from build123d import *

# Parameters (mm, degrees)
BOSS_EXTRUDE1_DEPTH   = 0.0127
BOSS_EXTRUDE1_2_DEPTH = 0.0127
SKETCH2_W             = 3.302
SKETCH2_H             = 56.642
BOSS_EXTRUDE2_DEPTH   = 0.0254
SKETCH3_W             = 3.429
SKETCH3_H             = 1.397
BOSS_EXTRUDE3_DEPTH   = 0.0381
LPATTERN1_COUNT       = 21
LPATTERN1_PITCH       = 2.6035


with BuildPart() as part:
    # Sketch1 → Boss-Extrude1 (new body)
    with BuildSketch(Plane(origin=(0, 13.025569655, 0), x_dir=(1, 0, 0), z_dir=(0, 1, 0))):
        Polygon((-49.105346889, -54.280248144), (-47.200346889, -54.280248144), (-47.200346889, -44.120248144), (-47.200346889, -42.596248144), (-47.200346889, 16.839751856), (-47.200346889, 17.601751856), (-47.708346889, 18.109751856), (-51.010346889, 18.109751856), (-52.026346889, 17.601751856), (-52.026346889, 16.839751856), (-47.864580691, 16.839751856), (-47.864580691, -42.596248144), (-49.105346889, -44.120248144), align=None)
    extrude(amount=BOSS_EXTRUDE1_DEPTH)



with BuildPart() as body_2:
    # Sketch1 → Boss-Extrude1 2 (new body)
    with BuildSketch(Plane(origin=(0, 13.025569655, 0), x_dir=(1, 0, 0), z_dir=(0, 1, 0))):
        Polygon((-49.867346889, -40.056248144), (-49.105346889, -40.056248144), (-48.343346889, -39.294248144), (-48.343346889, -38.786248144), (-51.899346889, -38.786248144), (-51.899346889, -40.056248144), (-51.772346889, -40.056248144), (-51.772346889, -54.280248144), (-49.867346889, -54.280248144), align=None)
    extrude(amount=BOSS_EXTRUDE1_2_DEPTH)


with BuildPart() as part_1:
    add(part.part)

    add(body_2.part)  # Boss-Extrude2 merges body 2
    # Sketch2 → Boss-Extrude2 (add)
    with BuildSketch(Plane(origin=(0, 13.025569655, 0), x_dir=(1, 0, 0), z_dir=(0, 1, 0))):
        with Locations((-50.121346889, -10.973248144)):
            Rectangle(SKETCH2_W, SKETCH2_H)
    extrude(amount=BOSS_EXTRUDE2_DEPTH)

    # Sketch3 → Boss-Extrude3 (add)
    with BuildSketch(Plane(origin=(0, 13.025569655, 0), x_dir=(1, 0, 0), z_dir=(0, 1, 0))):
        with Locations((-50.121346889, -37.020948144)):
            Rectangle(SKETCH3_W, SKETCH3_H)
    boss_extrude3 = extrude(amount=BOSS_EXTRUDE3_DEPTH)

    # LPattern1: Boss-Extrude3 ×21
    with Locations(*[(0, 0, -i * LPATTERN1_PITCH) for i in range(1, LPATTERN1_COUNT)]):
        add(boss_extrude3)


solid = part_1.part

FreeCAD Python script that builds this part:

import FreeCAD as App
import Part
import Sketcher

V = App.Vector
Q = App.Units.Quantity

doc = App.newDocument("Part")
params = doc.addObject("Spreadsheet::Sheet", "Params")
for row, (alias, value) in enumerate([
    ("sketch1_height", "0.4 in"),
    ("sketch1_width", "0.13 in"),
    ("sketch1_height2", "2.83 in"),
    ("sketch1_height3", "0.03 in"),
    ("sketch1_height4", "2.34 in"),
    ("pad1_length", "0.0005 in"),
    ("sketch2_width", "0.03 in"),
    ("sketch2_width2", "0.14 in"),
    ("sketch2_height", "0.02 in"),
    ("sketch2_height2", "0.05 in"),
    ("sketch2_height3", "0.56 in"),
    ("pad2_length", "0.0005 in"),
    ("sketch3_width", "0.13 in"),
    ("sketch3_height", "2.23 in"),
    ("pad3_length", "0.001 in"),
    ("sketch4_width", "0.135 in"),
    ("sketch4_height", "0.055 in"),
    ("pad4_length", "0.0015 in"),
    ("linearpattern_pitch", "0.1025 in"),
], start=1):
    params.set(f"A{row}", alias)
    params.set(f"B{row}", "=" + value)
    params.setAlias(f"B{row}", alias)

body = doc.addObject("PartDesign::Body", "Body")

# Sketch on XZ plane
sketch1 = body.newObject("Sketcher::SketchObject", "Sketch")
sketch1.AttachmentSupport = (doc.getObject("XZ_Plane"), [""])
sketch1.MapMode = "FlatFace"
sketch1.AttachmentOffset = App.Placement(V(0, 0, -13.02557), App.Rotation())
sketch1.addGeometry([
    Part.LineSegment(V(-49.105347, 54.280248, 0), V(-47.200347, 54.280248, 0)),  # 0
    Part.LineSegment(V(-47.200347, 54.280248, 0), V(-47.200347, -17.601752, 0)),  # 1
    Part.LineSegment(V(-47.200347, -17.601752, 0), V(-47.708347, -18.109752, 0)),  # 2
    Part.LineSegment(V(-47.708347, -18.109752, 0), V(-51.010347, -18.109752, 0)),  # 3
    Part.LineSegment(V(-51.010347, -18.109752, 0), V(-52.026347, -17.601752, 0)),  # 4
    Part.LineSegment(V(-52.026347, -17.601752, 0), V(-52.026347, -16.839752, 0)),  # 5
    Part.LineSegment(V(-52.026347, -16.839752, 0), V(-47.864581, -16.839752, 0)),  # 6
    Part.LineSegment(V(-47.864581, -16.839752, 0), V(-47.864581, 42.596248, 0)),  # 7
    Part.LineSegment(V(-47.864581, 42.596248, 0), V(-49.105347, 44.120248, 0)),  # 8
    Part.LineSegment(V(-49.105347, 44.120248, 0), V(-49.105347, 54.280248, 0)),  # 9
], False)
sketch1.addConstraint([
    Sketcher.Constraint("Coincident", 0, 2, 1, 1),
    Sketcher.Constraint("Coincident", 1, 2, 2, 1),
    Sketcher.Constraint("Coincident", 2, 2, 3, 1),
    Sketcher.Constraint("Coincident", 3, 2, 4, 1),
    Sketcher.Constraint("Coincident", 4, 2, 5, 1),
    Sketcher.Constraint("Coincident", 5, 2, 6, 1),
    Sketcher.Constraint("Coincident", 6, 2, 7, 1),
    Sketcher.Constraint("Coincident", 7, 2, 8, 1),
    Sketcher.Constraint("Coincident", 8, 2, 9, 1),
    Sketcher.Constraint("Coincident", 9, 2, 0, 1),
    Sketcher.Constraint("Horizontal", 0),
    Sketcher.Constraint("Vertical", 1),
    Sketcher.Constraint("Horizontal", 3),
    Sketcher.Constraint("Vertical", 5),
    Sketcher.Constraint("Horizontal", 6),
    Sketcher.Constraint("Vertical", 7),
    Sketcher.Constraint("Vertical", 9),
    Sketcher.Constraint("Horizontal", 1, 2, 4, 2),
    Sketcher.Constraint("DistanceY", 9, 1, 9, 2, Q("0.4 in")),
    Sketcher.Constraint("Angle", 2, Q("-135 deg")),
    Sketcher.Constraint("DistanceX", 3, 2, 3, 1, Q("0.13 in")),
    Sketcher.Constraint("DistanceY", 1, 2, 1, 1, Q("2.83 in")),
    Sketcher.Constraint("DistanceY", 5, 1, 5, 2, Q("0.03 in")),
    Sketcher.Constraint("DistanceY", 7, 1, 7, 2, Q("2.34 in")),
    Sketcher.Constraint("DistanceX", 0, 1, 0, 2, Q("0.075 in")),
    Sketcher.Constraint("DistanceX", 2, 2, 1, 2, Q("0.02 in")),
    Sketcher.Constraint("DistanceX", 4, 2, 3, 2, Q("0.04 in")),
    Sketcher.Constraint("DistanceX", 6, 1, 6, 2, Q("4.161766 mm")),
    Sketcher.Constraint("DistanceY", -1, 1, 0, 2, Q("54.280248 mm")),
    Sketcher.Constraint("DistanceX", 6, 2, -1, 1, Q("47.864581 mm")),
])
sketch1.setExpression("Constraints[18]", "Params.sketch1_height")
sketch1.setExpression("Constraints[20]", "Params.sketch1_width")
sketch1.setExpression("Constraints[21]", "Params.sketch1_height2")
sketch1.setExpression("Constraints[22]", "Params.sketch1_height3")
sketch1.setExpression("Constraints[23]", "Params.sketch1_height4")
pad1 = body.newObject("PartDesign::Pad", "Pad")
pad1.Profile = sketch1
pad1.setExpression("Length", "Params.pad1_length")
pad1.Reversed = True
body2 = doc.addObject("PartDesign::Body", "Body001")

# Sketch on XZ plane
sketch2 = body2.newObject("Sketcher::SketchObject", "Sketch001")
sketch2.AttachmentSupport = (doc.getObject("XZ_Plane001"), [""])
sketch2.MapMode = "FlatFace"
sketch2.AttachmentOffset = App.Placement(V(0, 0, -13.02557), App.Rotation())
sketch2.addGeometry([
    Part.LineSegment(V(-49.867347, 40.056248, 0), V(-49.105347, 40.056248, 0)),  # 0
    Part.LineSegment(V(-49.105347, 40.056248, 0), V(-48.343347, 39.294248, 0)),  # 1
    Part.LineSegment(V(-48.343347, 39.294248, 0), V(-48.343347, 38.786248, 0)),  # 2
    Part.LineSegment(V(-48.343347, 38.786248, 0), V(-51.899347, 38.786248, 0)),  # 3
    Part.LineSegment(V(-51.899347, 38.786248, 0), V(-51.899347, 40.056248, 0)),  # 4
    Part.LineSegment(V(-51.899347, 40.056248, 0), V(-51.772347, 40.056248, 0)),  # 5
    Part.LineSegment(V(-51.772347, 40.056248, 0), V(-51.772347, 54.280248, 0)),  # 6
    Part.LineSegment(V(-51.772347, 54.280248, 0), V(-49.867347, 54.280248, 0)),  # 7
    Part.LineSegment(V(-49.867347, 54.280248, 0), V(-49.867347, 40.056248, 0)),  # 8
], False)
sketch2.addConstraint([
    Sketcher.Constraint("Coincident", 0, 2, 1, 1),
    Sketcher.Constraint("Coincident", 1, 2, 2, 1),
    Sketcher.Constraint("Coincident", 2, 2, 3, 1),
    Sketcher.Constraint("Coincident", 3, 2, 4, 1),
    Sketcher.Constraint("Coincident", 4, 2, 5, 1),
    Sketcher.Constraint("Coincident", 5, 2, 6, 1),
    Sketcher.Constraint("Coincident", 6, 2, 7, 1),
    Sketcher.Constraint("Coincident", 7, 2, 8, 1),
    Sketcher.Constraint("Coincident", 8, 2, 0, 1),
    Sketcher.Constraint("Horizontal", 0),
    Sketcher.Constraint("Vertical", 2),
    Sketcher.Constraint("Horizontal", 3),
    Sketcher.Constraint("Vertical", 4),
    Sketcher.Constraint("Horizontal", 5),
    Sketcher.Constraint("Vertical", 6),
    Sketcher.Constraint("Horizontal", 7),
    Sketcher.Constraint("Vertical", 8),
    Sketcher.Constraint("Horizontal", 0, 2, 4, 2),
    Sketcher.Constraint("Angle", 1, Q("-45 deg")),
    Sketcher.Constraint("DistanceX", 0, 1, 0, 2, Q("0.03 in")),
    Sketcher.Constraint("DistanceX", 3, 2, 3, 1, Q("0.14 in")),
    Sketcher.Constraint("DistanceY", 2, 2, 2, 1, Q("0.02 in")),
    Sketcher.Constraint("DistanceY", 4, 1, 4, 2, Q("0.05 in")),
    Sketcher.Constraint("DistanceY", 6, 1, 6, 2, Q("0.56 in")),
    Sketcher.Constraint("DistanceX", 5, 1, 5, 2, Q("0.005 in")),
    Sketcher.Constraint("DistanceY", -1, 1, 0, 2, Q("40.056248 mm")),
    Sketcher.Constraint("DistanceX", 0, 2, -1, 1, Q("49.105347 mm")),
])
sketch2.setExpression("Constraints[19]", "Params.sketch2_width")
sketch2.setExpression("Constraints[20]", "Params.sketch2_width2")
sketch2.setExpression("Constraints[21]", "Params.sketch2_height")
sketch2.setExpression("Constraints[22]", "Params.sketch2_height2")
sketch2.setExpression("Constraints[23]", "Params.sketch2_height3")
pad2 = body2.newObject("PartDesign::Pad", "Pad001")
pad2.Profile = sketch2
pad2.setExpression("Length", "Params.pad2_length")
pad2.Reversed = True
body.AllowCompound = True
doc.recompute()

boolean = body.newObject("PartDesign::Boolean", "Boolean")
boolean.Type = "Fuse"
boolean.addObjects([body2])

# Sketch on XZ plane
sketch3 = body.newObject("Sketcher::SketchObject", "Sketch002")
sketch3.AttachmentSupport = (doc.getObject("XZ_Plane"), [""])
sketch3.MapMode = "FlatFace"
sketch3.AttachmentOffset = App.Placement(V(0, 0, -13.02557), App.Rotation())
sketch3.addGeometry([
    Part.LineSegment(V(-51.772347, -17.347752, 0), V(-51.772347, 39.294248, 0)),
    Part.LineSegment(V(-51.772347, 39.294248, 0), V(-48.470347, 39.294248, 0)),
    Part.LineSegment(V(-48.470347, 39.294248, 0), V(-48.470347, -17.347752, 0)),
    Part.LineSegment(V(-48.470347, -17.347752, 0), V(-51.772347, -17.347752, 0)),
], False)
sketch3.addConstraint([
    Sketcher.Constraint("Coincident", 0, 2, 1, 1),
    Sketcher.Constraint("Coincident", 1, 2, 2, 1),
    Sketcher.Constraint("Coincident", 2, 2, 3, 1),
    Sketcher.Constraint("Coincident", 3, 2, 0, 1),
    Sketcher.Constraint("Vertical", 0),
    Sketcher.Constraint("Horizontal", 1),
    Sketcher.Constraint("Vertical", 2),
    Sketcher.Constraint("Horizontal", 3),
    Sketcher.Constraint("DistanceX", 1, 1, 1, 2, Q("0.13 in")),
    Sketcher.Constraint("DistanceY", 0, 1, 0, 2, Q("2.23 in")),
    Sketcher.Constraint("DistanceY", -1, 1, 0, 2, Q("39.294248 mm")),
    Sketcher.Constraint("DistanceX", 0, 2, -1, 1, Q("51.772347 mm")),
])
sketch3.setExpression("Constraints[8]", "Params.sketch3_width")
sketch3.setExpression("Constraints[9]", "Params.sketch3_height")
pad3 = body.newObject("PartDesign::Pad", "Pad002")
pad3.Profile = sketch3
pad3.setExpression("Length", "Params.pad3_length")
pad3.Reversed = True

# Sketch on XZ plane
sketch4 = body.newObject("Sketcher::SketchObject", "Sketch003")
sketch4.AttachmentSupport = (doc.getObject("XZ_Plane"), [""])
sketch4.MapMode = "FlatFace"
sketch4.AttachmentOffset = App.Placement(V(0, 0, -13.02557), App.Rotation())
sketch4.addGeometry([
    Part.LineSegment(V(-51.835847, 36.322448, 0), V(-51.835847, 37.719448, 0)),
    Part.LineSegment(V(-51.835847, 37.719448, 0), V(-48.406847, 37.719448, 0)),
    Part.LineSegment(V(-48.406847, 37.719448, 0), V(-48.406847, 36.322448, 0)),
    Part.LineSegment(V(-48.406847, 36.322448, 0), V(-51.835847, 36.322448, 0)),
], False)
sketch4.addConstraint([
    Sketcher.Constraint("Coincident", 0, 2, 1, 1),
    Sketcher.Constraint("Coincident", 1, 2, 2, 1),
    Sketcher.Constraint("Coincident", 2, 2, 3, 1),
    Sketcher.Constraint("Coincident", 3, 2, 0, 1),
    Sketcher.Constraint("Vertical", 0),
    Sketcher.Constraint("Horizontal", 1),
    Sketcher.Constraint("Vertical", 2),
    Sketcher.Constraint("Horizontal", 3),
    Sketcher.Constraint("DistanceX", 1, 1, 1, 2, Q("0.135 in")),
    Sketcher.Constraint("DistanceY", 0, 1, 0, 2, Q("0.055 in")),
    Sketcher.Constraint("DistanceY", -1, 1, 0, 2, Q("37.719448 mm")),
    Sketcher.Constraint("DistanceX", 0, 2, -1, 1, Q("51.835847 mm")),
])
sketch4.setExpression("Constraints[8]", "Params.sketch4_width")
sketch4.setExpression("Constraints[9]", "Params.sketch4_height")
pad4 = body.newObject("PartDesign::Pad", "Pad003")
pad4.Profile = sketch4
pad4.setExpression("Length", "Params.pad4_length")
pad4.Reversed = True
doc.recompute()

linearpattern = body.newObject("PartDesign::LinearPattern", "LinearPattern")
linearpattern.Originals = [pad4]
linearpattern.Direction = (doc.getObject("Z_Axis"), [""])
linearpattern.Mode = "offset"
linearpattern.setExpression("Offset", "Params.linearpattern_pitch")
linearpattern.Occurrences = 21
linearpattern.Reversed = True
body.Tip = linearpattern

doc.recompute()
